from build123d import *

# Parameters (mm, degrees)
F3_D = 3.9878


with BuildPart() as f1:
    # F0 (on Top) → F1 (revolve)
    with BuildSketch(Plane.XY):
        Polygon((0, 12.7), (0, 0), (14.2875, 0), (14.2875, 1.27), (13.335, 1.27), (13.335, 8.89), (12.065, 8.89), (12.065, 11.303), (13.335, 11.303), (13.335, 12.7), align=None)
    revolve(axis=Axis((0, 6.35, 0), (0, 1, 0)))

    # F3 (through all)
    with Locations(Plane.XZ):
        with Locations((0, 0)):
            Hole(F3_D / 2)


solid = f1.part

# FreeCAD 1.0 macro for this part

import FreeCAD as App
import Part
import Sketcher
Q = App.Units.Quantity


def add_polygon(sketch, points):
    """Adds a closed chain of lines whose ends are joined by coincident constraints."""
    first, n = sketch.GeometryCount, len(points)
    for a, b in zip(points, points[1:] + points[:1]):
        sketch.addGeometry(Part.LineSegment(App.Vector(*a, 0), App.Vector(*b, 0)), False)
    for i in range(n):
        sketch.addConstraint(Sketcher.Constraint("Coincident", first + i, 2, first + (i + 1) % n, 1))

doc = App.newDocument("Part")
body = doc.addObject("PartDesign::Body", "Body")

sketch1 = body.newObject("Sketcher::SketchObject", "Sketch")
sketch1.AttachmentSupport = (doc.getObject("XY_Plane"), [""])
sketch1.MapMode = "FlatFace"
add_polygon(sketch1, [(0, 12.7), (0, 0), (14.3, 0), (14.3, 1.3), (13.3, 1.3), (13.3, 8.9), (12.1, 8.9), (12.1, 11.3), (13.3, 11.3), (13.3, 12.7)])
sketch1.addConstraint(Sketcher.Constraint("Vertical", 0))
sketch1.addConstraint(Sketcher.Constraint("Horizontal", 1))
sketch1.addConstraint(Sketcher.Constraint("Vertical", 2))
sketch1.addConstraint(Sketcher.Constraint("Horizontal", 3))
sketch1.addConstraint(Sketcher.Constraint("Vertical", 4))
sketch1.addConstraint(Sketcher.Constraint("Horizontal", 5))
sketch1.addConstraint(Sketcher.Constraint("Vertical", 6))
sketch1.addConstraint(Sketcher.Constraint("Horizontal", 7))
sketch1.addConstraint(Sketcher.Constraint("Vertical", 8))
sketch1.addConstraint(Sketcher.Constraint("Horizontal", 9))
sketch1.addConstraint(Sketcher.Constraint("Coincident", 0, 2, -1, 1))
sketch1.addConstraint(Sketcher.Constraint("Vertical", 4, 2, 7, 2))
sketch1.addConstraint(Sketcher.Constraint("Equal", 7, 2))
sketch1.addConstraint(Sketcher.Constraint("DistanceY", 0, 2, 0, 1, Q("0.5 in")))
sketch1.addConstraint(Sketcher.Constraint("DistanceY", 4, 1, 4, 2, Q("0.3 in")))
sketch1.addConstraint(Sketcher.Constraint("DistanceX", 5, 2, 5, 1, Q("0.05 in")))
sketch1.addConstraint(Sketcher.Constraint("DistanceX", 1, 1, 1, 2, Q("0.5625 in")))
sketch1.addConstraint(Sketcher.Constraint("DistanceX", 9, 2, 9, 1, Q("0.525 in")))
sketch1.addConstraint(Sketcher.Constraint("DistanceY", 6, 1, 6, 2, Q("0.095 in")))
revolution = body.newObject("PartDesign::Revolution", "Revolution")
revolution.Profile = sketch1
revolution.ReferenceAxis = (sketch1, ["V_Axis"])
revolution.Angle = 360

sketch2 = body.newObject("Sketcher::SketchObject", "Sketch001")
sketch2.AttachmentSupport = (doc.getObject("XZ_Plane"), [""])
sketch2.MapMode = "FlatFace"
sketch2.addGeometry(Part.Circle(App.Vector(0, 0, 0), App.Vector(0, 0, 1), 2), False)
sketch2.addConstraint(Sketcher.Constraint("Coincident", 0, 3, -1, 1))
sketch2.addConstraint(Sketcher.Constraint("Diameter", 0, Q("0.157 in")))
doc.recompute()
hole = body.newObject("PartDesign::Hole", "Hole")
hole.Profile = sketch2
hole.ThreadType = "None"
hole.Diameter = Q("0.157 in")
hole.DepthType = "ThroughAll"

doc.recompute()
